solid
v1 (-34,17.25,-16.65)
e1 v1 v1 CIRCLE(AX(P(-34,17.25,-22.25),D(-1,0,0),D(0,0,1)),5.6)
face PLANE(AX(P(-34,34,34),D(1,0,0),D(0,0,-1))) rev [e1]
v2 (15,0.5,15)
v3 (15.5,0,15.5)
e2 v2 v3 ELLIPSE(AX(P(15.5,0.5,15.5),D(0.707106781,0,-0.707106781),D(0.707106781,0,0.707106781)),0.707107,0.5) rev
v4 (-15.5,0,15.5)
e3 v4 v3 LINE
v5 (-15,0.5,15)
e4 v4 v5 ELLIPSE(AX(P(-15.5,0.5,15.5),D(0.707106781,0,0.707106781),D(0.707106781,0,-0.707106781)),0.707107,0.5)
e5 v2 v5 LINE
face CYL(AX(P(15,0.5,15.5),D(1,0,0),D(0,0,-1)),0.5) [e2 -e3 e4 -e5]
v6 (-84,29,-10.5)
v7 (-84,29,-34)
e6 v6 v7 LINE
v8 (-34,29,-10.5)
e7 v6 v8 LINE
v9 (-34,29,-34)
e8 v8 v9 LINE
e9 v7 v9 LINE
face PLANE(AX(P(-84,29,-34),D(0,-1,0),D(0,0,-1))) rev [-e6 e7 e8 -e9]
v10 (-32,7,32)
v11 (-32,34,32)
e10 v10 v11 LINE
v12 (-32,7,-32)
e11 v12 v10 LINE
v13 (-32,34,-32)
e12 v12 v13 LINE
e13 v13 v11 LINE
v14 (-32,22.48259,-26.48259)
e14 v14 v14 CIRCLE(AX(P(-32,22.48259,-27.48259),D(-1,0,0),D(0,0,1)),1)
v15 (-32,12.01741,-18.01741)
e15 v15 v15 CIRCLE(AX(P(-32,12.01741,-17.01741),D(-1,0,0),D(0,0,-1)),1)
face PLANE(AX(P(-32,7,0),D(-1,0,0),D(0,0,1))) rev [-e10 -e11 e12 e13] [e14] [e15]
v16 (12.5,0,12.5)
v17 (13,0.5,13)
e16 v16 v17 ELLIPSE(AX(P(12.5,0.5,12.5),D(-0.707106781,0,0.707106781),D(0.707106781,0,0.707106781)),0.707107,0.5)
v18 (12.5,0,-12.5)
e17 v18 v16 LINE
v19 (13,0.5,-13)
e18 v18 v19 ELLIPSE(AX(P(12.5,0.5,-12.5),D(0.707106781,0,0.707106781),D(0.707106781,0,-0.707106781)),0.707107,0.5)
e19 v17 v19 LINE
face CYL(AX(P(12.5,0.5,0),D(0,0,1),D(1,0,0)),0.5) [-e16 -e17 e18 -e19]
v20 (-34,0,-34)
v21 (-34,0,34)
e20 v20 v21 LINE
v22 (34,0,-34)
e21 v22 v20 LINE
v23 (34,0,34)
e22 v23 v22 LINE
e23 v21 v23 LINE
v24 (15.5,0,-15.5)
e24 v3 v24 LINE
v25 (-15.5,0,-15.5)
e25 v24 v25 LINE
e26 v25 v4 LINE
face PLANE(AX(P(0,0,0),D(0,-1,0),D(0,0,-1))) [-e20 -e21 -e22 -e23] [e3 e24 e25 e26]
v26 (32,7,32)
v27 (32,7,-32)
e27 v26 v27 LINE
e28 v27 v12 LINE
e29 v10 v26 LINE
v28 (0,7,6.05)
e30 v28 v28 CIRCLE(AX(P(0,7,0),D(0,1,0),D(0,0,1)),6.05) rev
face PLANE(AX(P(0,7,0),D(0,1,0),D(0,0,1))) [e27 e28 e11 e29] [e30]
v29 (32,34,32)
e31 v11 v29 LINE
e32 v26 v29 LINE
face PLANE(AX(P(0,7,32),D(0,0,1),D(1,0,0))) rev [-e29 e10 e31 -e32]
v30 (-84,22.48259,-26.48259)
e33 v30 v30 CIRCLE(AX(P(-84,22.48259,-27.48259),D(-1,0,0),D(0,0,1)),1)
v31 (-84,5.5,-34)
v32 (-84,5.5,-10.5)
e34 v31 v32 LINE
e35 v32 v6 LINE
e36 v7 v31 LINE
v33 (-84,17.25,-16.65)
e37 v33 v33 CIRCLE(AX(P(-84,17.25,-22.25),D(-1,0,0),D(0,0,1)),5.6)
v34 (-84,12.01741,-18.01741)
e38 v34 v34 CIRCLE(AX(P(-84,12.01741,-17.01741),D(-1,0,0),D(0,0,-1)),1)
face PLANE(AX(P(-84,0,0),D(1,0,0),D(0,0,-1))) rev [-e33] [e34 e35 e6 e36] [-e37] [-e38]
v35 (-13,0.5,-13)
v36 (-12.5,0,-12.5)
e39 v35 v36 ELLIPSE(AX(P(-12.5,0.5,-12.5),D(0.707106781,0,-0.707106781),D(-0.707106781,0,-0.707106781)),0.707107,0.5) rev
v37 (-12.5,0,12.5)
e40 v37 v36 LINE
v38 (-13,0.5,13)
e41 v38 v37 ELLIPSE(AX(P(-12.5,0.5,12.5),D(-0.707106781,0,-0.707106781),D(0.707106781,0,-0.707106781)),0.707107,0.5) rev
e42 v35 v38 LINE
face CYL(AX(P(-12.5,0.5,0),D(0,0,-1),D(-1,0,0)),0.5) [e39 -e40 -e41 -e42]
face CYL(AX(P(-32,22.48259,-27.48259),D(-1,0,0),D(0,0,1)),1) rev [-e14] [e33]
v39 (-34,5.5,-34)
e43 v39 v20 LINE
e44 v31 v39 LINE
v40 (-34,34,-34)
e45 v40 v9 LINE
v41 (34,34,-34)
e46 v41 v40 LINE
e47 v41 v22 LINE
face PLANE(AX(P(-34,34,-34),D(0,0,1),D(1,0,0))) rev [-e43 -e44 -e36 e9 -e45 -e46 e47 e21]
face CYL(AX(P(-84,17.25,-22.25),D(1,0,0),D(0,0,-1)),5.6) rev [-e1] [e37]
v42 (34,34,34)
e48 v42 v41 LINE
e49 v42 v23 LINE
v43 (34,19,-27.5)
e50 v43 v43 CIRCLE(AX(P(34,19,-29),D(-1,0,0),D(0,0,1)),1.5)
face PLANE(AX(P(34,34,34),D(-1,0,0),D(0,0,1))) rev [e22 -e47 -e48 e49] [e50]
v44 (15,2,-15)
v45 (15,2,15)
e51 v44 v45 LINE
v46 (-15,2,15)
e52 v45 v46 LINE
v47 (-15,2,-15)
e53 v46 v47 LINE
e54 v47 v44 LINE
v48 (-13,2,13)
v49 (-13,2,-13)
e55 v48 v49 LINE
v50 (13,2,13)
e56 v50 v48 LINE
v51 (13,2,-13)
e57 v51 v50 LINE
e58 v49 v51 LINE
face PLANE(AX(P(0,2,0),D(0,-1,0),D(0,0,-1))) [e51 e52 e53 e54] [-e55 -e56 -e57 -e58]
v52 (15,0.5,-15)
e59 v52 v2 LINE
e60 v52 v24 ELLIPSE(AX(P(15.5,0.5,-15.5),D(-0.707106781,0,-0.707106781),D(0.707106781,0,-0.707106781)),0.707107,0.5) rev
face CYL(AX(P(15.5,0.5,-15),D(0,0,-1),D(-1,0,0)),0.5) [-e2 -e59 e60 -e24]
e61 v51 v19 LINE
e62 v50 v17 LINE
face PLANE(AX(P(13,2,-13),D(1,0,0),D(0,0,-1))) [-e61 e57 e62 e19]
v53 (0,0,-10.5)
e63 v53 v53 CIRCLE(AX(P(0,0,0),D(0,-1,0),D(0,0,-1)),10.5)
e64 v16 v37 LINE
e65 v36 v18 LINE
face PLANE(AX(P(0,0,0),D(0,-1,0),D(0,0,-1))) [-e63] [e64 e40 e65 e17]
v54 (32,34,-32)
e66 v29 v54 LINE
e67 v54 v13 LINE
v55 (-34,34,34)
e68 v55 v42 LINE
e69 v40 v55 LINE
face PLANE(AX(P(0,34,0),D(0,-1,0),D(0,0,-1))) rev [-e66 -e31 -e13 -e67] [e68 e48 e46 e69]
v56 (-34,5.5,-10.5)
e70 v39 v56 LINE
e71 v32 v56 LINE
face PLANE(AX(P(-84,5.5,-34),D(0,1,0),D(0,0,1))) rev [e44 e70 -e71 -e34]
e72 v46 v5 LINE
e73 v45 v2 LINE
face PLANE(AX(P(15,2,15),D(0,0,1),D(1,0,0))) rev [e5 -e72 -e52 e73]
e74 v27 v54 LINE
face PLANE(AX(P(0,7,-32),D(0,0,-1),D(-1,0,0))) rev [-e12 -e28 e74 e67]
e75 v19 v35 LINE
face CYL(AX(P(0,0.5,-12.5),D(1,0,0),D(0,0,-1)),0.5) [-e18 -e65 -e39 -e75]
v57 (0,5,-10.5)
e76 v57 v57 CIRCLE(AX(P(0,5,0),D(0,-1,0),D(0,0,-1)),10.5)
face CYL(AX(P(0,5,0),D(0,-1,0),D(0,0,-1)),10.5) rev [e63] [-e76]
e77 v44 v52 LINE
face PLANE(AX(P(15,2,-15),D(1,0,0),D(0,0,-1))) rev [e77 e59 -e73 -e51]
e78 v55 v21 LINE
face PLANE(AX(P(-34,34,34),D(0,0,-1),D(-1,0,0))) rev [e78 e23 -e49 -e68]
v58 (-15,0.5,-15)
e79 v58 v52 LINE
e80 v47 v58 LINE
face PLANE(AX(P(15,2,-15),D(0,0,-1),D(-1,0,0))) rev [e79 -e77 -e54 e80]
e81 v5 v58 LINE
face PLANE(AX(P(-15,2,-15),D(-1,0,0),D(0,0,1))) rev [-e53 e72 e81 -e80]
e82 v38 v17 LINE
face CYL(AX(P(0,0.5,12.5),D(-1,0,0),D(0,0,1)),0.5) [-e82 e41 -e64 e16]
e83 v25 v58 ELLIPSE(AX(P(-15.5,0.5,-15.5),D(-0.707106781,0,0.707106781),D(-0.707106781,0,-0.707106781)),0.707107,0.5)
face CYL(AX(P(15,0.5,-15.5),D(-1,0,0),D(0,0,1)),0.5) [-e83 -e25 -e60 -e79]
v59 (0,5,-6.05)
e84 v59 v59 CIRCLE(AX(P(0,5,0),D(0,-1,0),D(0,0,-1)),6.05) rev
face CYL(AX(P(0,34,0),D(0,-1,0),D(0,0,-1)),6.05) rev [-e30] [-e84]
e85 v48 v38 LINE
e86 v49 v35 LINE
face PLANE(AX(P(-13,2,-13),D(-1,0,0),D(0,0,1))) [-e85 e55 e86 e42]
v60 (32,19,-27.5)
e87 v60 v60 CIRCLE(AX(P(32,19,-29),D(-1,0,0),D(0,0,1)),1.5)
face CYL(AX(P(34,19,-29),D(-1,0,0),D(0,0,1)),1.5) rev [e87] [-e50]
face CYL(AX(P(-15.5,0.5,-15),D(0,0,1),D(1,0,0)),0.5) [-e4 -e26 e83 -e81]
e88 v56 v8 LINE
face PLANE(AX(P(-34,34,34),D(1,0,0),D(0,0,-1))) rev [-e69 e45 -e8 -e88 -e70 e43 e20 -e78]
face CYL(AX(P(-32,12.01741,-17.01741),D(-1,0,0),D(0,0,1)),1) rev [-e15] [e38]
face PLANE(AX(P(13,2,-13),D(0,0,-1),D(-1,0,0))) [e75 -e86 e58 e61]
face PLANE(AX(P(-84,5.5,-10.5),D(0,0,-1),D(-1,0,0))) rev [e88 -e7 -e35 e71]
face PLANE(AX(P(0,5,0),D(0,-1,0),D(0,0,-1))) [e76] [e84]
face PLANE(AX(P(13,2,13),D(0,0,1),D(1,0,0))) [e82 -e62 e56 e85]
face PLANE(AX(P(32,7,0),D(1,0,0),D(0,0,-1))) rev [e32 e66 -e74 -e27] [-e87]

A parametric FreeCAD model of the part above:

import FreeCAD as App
import Part
import Sketcher
from FreeCAD import Vector


def edges_at(feature, points):
    """Names of the edges that pass closest to the given points."""
    edges = feature.Shape.Edges
    near = lambda p: min(range(len(edges)), key=lambda i: edges[i].distToShape(Part.Vertex(*p))[0])
    return sorted({f"Edge{near(p) + 1}" for p in points})


def add_polygon(sketch, points):
    """Adds a closed chain of lines whose ends are joined by coincident constraints."""
    first, n = sketch.GeometryCount, len(points)
    for a, b in zip(points, points[1:] + points[:1]):
        sketch.addGeometry(Part.LineSegment(App.Vector(*a, 0), App.Vector(*b, 0)), False)
    for i in range(n):
        sketch.addConstraint(Sketcher.Constraint("Coincident", first + i, 2, first + (i + 1) % n, 1))

doc = App.newDocument("Part")
body = doc.addObject("PartDesign::Body", "Body")

sketch1 = body.newObject("Sketcher::SketchObject", "Sketch")
sketch1.AttachmentSupport = (doc.getObject("XZ_Plane"), [""])
sketch1.MapMode = "FlatFace"
add_polygon(sketch1, [(-34, -34), (-34, 34), (34, 34), (34, -34)])
sketch1.addConstraint([
    Sketcher.Constraint("Vertical", 0),
    Sketcher.Constraint("Horizontal", 1),
    Sketcher.Constraint("Vertical", 2),
    Sketcher.Constraint("Horizontal", 3),
    Sketcher.Constraint("Symmetric", 0, 2, 2, 2, -1, 1),
    Sketcher.Constraint("Equal", 3, 0),
    Sketcher.Constraint("DistanceX", 1, 1, 1, 2, 68.0),
])
pad1 = body.newObject("PartDesign::Pad", "Pad")
pad1.Profile = sketch1
pad1.Length = 34
pad1.Reversed = True

sketch2 = body.newObject("Sketcher::SketchObject", "Sketch001")
sketch2.AttachmentSupport = (doc.getObject("XZ_Plane"), [""])
sketch2.MapMode = "FlatFace"
sketch2.AttachmentOffset = App.Placement(Vector(0, 0, -34), App.Rotation())
add_polygon(sketch2, [(-32, -32), (-32, 32), (32, 32), (32, -32)])
sketch2.addConstraint([
    Sketcher.Constraint("Vertical", 0),
    Sketcher.Constraint("Horizontal", 1),
    Sketcher.Constraint("Vertical", 2),
    Sketcher.Constraint("Horizontal", 3),
    Sketcher.Constraint("Symmetric", 0, 2, 2, 2, -1, 1),
    Sketcher.Constraint("Equal", 3, 0),
    Sketcher.Constraint("DistanceX", 1, 1, 1, 2, 64.0),
])
pocket1 = body.newObject("PartDesign::Pocket", "Pocket")
pocket1.Profile = sketch2
pocket1.Length = 27
pocket1.Reversed = True

sketch3 = body.newObject("Sketcher::SketchObject", "Sketch002")
sketch3.AttachmentSupport = (doc.getObject("XZ_Plane"), [""])
sketch3.MapMode = "FlatFace"
sketch3.addGeometry(Part.Circle(Vector(0, 0, 0), Vector(0, 0, 1), 10), False)
sketch3.addConstraint([
    Sketcher.Constraint("Coincident", 0, 3, -1, 1),
    Sketcher.Constraint("Diameter", 0, 21.0),
])
pocket2 = body.newObject("PartDesign::Pocket", "Pocket001")
pocket2.Profile = sketch3
pocket2.Length = 5

sketch4 = body.newObject("Sketcher::SketchObject", "Sketch003")
sketch4.AttachmentSupport = (doc.getObject("XZ_Plane"), [""])
sketch4.MapMode = "FlatFace"
add_polygon(sketch4, [(15, -15), (15, 15), (-15, 15), (-15, -15)])
add_polygon(sketch4, [(-13, 13), (13, 13), (13, -13), (-13, -13)])
sketch4.addConstraint([
    Sketcher.Constraint("Vertical", 0),
    Sketcher.Constraint("Horizontal", 1),
    Sketcher.Constraint("Vertical", 2),
    Sketcher.Constraint("Horizontal", 3),
    Sketcher.Constraint("Horizontal", 4),
    Sketcher.Constraint("Vertical", 5),
    Sketcher.Constraint("Horizontal", 6),
    Sketcher.Constraint("Vertical", 7),
    Sketcher.Constraint("Symmetric", 0, 2, 2, 2, -1, 1),
    Sketcher.Constraint("Symmetric", 4, 2, 6, 2, -1, 1),
    Sketcher.Constraint("Equal", 3, 0),
    Sketcher.Constraint("Equal", 6, 5),
    Sketcher.Constraint("DistanceX", 1, 2, 1, 1, 30.0),
    Sketcher.Constraint("DistanceX", 4, 1, 4, 2, 26.0),
])
pocket3 = body.newObject("PartDesign::Pocket", "Pocket002")
pocket3.Profile = sketch4
pocket3.Length = 2

sketch5 = body.newObject("Sketcher::SketchObject", "Sketch004")
sketch5.AttachmentSupport = (doc.getObject("YZ_Plane"), [""])
sketch5.MapMode = "FlatFace"
sketch5.AttachmentOffset = App.Placement(Vector(0, 0, 32), App.Rotation())
sketch5.addGeometry(Part.Circle(Vector(19, -29, 0), Vector(0, 0, 1), 1.5), False)
sketch5.addConstraint([
    Sketcher.Constraint("Diameter", 0, 3.0),
    Sketcher.Constraint("DistanceX", -1, 1, 0, 3, 19.0),
    Sketcher.Constraint("DistanceY", 0, 3, -1, 1, 29.0),
])
pocket4 = body.newObject("PartDesign::Pocket", "Pocket003")
pocket4.Profile = sketch5
pocket4.Type = "ThroughAll"
pocket4.Reversed = True

sketch6 = body.newObject("Sketcher::SketchObject", "Sketch005")
sketch6.AttachmentSupport = (doc.getObject("YZ_Plane"), [""])
sketch6.MapMode = "FlatFace"
sketch6.AttachmentOffset = App.Placement(Vector(0, 0, -34), App.Rotation())
add_polygon(sketch6, [(29, -34), (6, -34), (6, -10), (29, -10)])
sketch6.addGeometry(Part.Circle(Vector(17, -22, 0), Vector(0, 0, 1), 6), False)
sketch6.addConstraint([
    Sketcher.Constraint("Horizontal", 0),
    Sketcher.Constraint("Vertical", 1),
    Sketcher.Constraint("Horizontal", 2),
    Sketcher.Constraint("Vertical", 3),
    Sketcher.Constraint("Equal", 2, 1),
    Sketcher.Constraint("Diameter", 4, 11.2),
    Sketcher.Constraint("DistanceX", 0, 2, 0, 1, 23.5),
    Sketcher.Constraint("DistanceY", 0, 2, -1, 1, 34.0),
    Sketcher.Constraint("DistanceX", -1, 1, 2, 2, 29.0),
    Sketcher.Constraint("DistanceX", -1, 1, 4, 3, 17.25),
    Sketcher.Constraint("DistanceY", 4, 3, -1, 1, 22.25),
])
pad2 = body.newObject("PartDesign::Pad", "Pad001")
pad2.Profile = sketch6
pad2.Length = 50
pad2.Reversed = True

sketch7 = body.newObject("Sketcher::SketchObject", "Sketch006")
sketch7.AttachmentSupport = (doc.getObject("YZ_Plane"), [""])
sketch7.MapMode = "FlatFace"
sketch7.AttachmentOffset = App.Placement(Vector(0, 0, -84), App.Rotation())
sketch7.addGeometry([
    Part.Circle(Vector(22.5, -27.5, 0), Vector(0, 0, 1), 1),
    Part.Circle(Vector(12, -17, 0), Vector(0, 0, 1), 1),
], False)
sketch7.addConstraint([
    Sketcher.Constraint("Equal", 0, 1),
    Sketcher.Constraint("Diameter", 0, 2.0),
    Sketcher.Constraint("DistanceX", -1, 1, 0, 3, 22.48259),
    Sketcher.Constraint("DistanceY", 0, 3, -1, 1, 27.48259),
    Sketcher.Constraint("DistanceX", -1, 1, 1, 3, 12.01741),
    Sketcher.Constraint("DistanceY", 1, 3, -1, 1, 17.01741),
])
pocket5 = body.newObject("PartDesign::Pocket", "Pocket004")
pocket5.Profile = sketch7
pocket5.Length = 52
pocket5.Reversed = True

sketch8 = body.newObject("Sketcher::SketchObject", "Sketch007")
sketch8.AttachmentSupport = (doc.getObject("XZ_Plane"), [""])
sketch8.MapMode = "FlatFace"
sketch8.addGeometry(Part.Circle(Vector(0, 0, 0), Vector(0, 0, 1), 6), False)
sketch8.addConstraint([
    Sketcher.Constraint("Coincident", 0, 3, -1, 1),
    Sketcher.Constraint("Diameter", 0, 12.1),
])
pocket6 = body.newObject("PartDesign::Pocket", "Pocket005")
pocket6.Profile = sketch8
pocket6.Type = "ThroughAll"
doc.recompute()

fillet = body.newObject("PartDesign::Fillet", "Fillet")
fillet.Base = (pocket6, edges_at(pocket6, [
    (15, 0, 0),
    (0, 0, 15),
    (-15, 0, 0),
    (0, 0, -15),
    (13, 0, 0),
    (0, 0, -13),
    (-13, 0, 0),
    (0, 0, 13),
]))
fillet.Radius = 0.5

doc.recompute()
